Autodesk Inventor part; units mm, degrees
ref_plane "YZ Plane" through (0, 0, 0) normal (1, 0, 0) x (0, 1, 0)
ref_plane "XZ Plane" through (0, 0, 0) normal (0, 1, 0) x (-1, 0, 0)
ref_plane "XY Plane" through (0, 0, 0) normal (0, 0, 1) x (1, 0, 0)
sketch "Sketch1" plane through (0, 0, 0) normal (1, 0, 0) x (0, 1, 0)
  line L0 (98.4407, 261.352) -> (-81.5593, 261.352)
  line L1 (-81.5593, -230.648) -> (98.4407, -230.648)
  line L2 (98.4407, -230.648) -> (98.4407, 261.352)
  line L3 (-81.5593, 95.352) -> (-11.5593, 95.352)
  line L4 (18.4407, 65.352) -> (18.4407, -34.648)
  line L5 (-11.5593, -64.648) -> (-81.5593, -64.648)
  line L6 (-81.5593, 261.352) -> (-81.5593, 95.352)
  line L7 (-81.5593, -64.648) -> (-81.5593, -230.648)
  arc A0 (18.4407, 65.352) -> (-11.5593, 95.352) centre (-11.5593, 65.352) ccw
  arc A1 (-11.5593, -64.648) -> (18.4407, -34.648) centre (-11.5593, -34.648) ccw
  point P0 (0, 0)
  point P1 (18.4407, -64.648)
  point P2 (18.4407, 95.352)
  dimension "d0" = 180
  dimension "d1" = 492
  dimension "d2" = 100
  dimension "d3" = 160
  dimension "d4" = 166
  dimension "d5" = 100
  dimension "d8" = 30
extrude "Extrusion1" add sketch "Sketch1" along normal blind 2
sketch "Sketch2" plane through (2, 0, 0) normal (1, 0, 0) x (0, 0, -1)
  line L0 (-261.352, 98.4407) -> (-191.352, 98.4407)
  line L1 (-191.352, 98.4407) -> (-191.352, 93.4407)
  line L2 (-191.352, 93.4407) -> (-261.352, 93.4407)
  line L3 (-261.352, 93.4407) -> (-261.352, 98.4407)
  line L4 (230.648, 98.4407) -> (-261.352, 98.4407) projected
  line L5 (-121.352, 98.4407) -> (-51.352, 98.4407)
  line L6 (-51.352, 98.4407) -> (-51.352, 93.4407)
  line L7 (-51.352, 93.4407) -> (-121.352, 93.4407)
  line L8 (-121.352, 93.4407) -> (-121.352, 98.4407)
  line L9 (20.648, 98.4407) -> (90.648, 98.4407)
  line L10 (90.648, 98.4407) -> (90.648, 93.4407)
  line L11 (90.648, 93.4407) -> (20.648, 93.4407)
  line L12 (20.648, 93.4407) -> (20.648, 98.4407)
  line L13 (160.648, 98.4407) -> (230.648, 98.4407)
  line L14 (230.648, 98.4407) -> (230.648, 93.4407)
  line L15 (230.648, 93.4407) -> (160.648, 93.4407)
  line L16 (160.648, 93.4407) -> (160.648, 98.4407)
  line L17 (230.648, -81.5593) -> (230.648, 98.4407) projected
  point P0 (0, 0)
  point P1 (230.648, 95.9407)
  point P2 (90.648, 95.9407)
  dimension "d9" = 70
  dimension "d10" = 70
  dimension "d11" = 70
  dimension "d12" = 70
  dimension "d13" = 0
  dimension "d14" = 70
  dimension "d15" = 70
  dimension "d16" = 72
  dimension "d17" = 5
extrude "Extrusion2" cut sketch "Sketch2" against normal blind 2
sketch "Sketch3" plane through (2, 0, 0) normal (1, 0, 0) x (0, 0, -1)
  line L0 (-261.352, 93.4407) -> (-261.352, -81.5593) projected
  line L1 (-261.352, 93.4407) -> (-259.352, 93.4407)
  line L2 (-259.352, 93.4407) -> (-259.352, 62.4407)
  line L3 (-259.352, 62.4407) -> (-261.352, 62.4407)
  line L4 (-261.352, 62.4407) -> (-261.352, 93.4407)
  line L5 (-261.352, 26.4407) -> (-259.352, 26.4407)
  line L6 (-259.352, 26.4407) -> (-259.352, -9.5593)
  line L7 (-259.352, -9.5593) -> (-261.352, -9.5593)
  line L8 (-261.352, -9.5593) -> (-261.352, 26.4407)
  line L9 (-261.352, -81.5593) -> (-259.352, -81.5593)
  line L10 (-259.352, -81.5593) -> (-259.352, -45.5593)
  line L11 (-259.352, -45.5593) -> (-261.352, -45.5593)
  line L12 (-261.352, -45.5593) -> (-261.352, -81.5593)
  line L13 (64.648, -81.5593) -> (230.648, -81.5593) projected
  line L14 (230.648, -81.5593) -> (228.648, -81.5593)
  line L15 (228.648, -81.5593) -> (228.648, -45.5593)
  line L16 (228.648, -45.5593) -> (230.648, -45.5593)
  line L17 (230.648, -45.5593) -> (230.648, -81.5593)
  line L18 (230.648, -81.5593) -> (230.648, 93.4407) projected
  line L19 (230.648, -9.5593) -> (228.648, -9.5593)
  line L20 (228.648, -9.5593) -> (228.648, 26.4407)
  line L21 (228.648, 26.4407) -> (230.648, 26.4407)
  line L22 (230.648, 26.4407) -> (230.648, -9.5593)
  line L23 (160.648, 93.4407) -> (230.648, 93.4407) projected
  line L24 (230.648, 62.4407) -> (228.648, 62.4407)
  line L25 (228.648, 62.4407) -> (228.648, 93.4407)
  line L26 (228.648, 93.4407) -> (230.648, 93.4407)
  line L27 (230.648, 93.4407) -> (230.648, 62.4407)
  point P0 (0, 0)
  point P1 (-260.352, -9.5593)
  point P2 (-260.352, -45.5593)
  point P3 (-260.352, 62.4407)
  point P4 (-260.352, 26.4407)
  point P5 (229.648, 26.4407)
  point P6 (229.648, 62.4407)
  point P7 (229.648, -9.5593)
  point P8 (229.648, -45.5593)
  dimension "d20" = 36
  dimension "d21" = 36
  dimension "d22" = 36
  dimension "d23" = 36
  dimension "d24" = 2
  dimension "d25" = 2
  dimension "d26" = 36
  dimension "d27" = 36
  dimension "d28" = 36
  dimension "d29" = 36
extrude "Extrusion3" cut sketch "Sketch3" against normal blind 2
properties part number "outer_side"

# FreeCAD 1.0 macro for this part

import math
import FreeCAD as App
import Part
import Sketcher
from FreeCAD import Vector


def add_polygon(sketch, points):
    """Adds a closed chain of lines whose ends are joined by coincident constraints."""
    first, n = sketch.GeometryCount, len(points)
    for a, b in zip(points, points[1:] + points[:1]):
        sketch.addGeometry(Part.LineSegment(App.Vector(*a, 0), App.Vector(*b, 0)), False)
    for i in range(n):
        sketch.addConstraint(Sketcher.Constraint("Coincident", first + i, 2, first + (i + 1) % n, 1))

doc = App.newDocument("Part")
body = doc.addObject("PartDesign::Body", "Body")

# Sketch on YZ plane
sketch1 = doc.addObject("Sketcher::SketchObject", "Sketch")
body.addObject(sketch1)
sketch1.AttachmentSupport = (doc.YZ_Plane, [""])
sketch1.MapMode = "FlatFace"
sketch1.addGeometry([
    Part.LineSegment(Vector(98, -231, 0), Vector(98, 261, 0)),  # 0
    Part.LineSegment(Vector(98, 261, 0), Vector(-82, 261, 0)),  # 1
    Part.LineSegment(Vector(-82, 261, 0), Vector(-82, 95, 0)),  # 2
    Part.LineSegment(Vector(-82, 95, 0), Vector(-12, 95, 0)),  # 3
    Part.ArcOfCircle(Part.Circle(Vector(-12, 65, 0), Vector(0, 0, 1), 30), math.radians(0), math.radians(90)),  # 4
    Part.LineSegment(Vector(18, 65, 0), Vector(18, -35, 0)),  # 5
    Part.ArcOfCircle(Part.Circle(Vector(-12, -35, 0), Vector(0, 0, 1), 30), math.radians(-90), math.radians(0)),  # 6
    Part.LineSegment(Vector(-12, -65, 0), Vector(-82, -65, 0)),  # 7
    Part.LineSegment(Vector(-82, -65, 0), Vector(-82, -231, 0)),  # 8
    Part.LineSegment(Vector(-82, -231, 0), Vector(98, -231, 0)),  # 9
], False)
sketch1.addConstraint([
    Sketcher.Constraint("Coincident", 0, 2, 1, 1),
    Sketcher.Constraint("Coincident", 1, 2, 2, 1),
    Sketcher.Constraint("Coincident", 2, 2, 3, 1),
    Sketcher.Constraint("Tangent", 3, 2, 4, 2),
    Sketcher.Constraint("Tangent", 4, 1, 5, 1),
    Sketcher.Constraint("Tangent", 5, 2, 6, 2),
    Sketcher.Constraint("Tangent", 6, 1, 7, 1),
    Sketcher.Constraint("Coincident", 7, 2, 8, 1),
    Sketcher.Constraint("Coincident", 8, 2, 9, 1),
    Sketcher.Constraint("Coincident", 9, 2, 0, 1),
    Sketcher.Constraint("Vertical", 0),
    Sketcher.Constraint("Horizontal", 1),
    Sketcher.Constraint("Vertical", 2),
    Sketcher.Constraint("Horizontal", 3),
    Sketcher.Constraint("Vertical", 5),
    Sketcher.Constraint("Horizontal", 7),
    Sketcher.Constraint("Vertical", 8),
    Sketcher.Constraint("Horizontal", 9),
    Sketcher.Constraint("Equal", 4, 6),
    Sketcher.Constraint("Vertical", 2, 2, 7, 2),
    Sketcher.Constraint("Equal", 2, 8),
    Sketcher.Constraint("Radius", 4, 30.0),
    Sketcher.Constraint("DistanceX", 1, 2, 1, 1, 180.0),
    Sketcher.Constraint("DistanceY", 0, 1, 0, 2, 492.0),
    Sketcher.Constraint("DistanceY", 2, 2, 2, 1, 166.0),
    Sketcher.Constraint("DistanceX", 2, 2, 4, 1, 100.0),
    Sketcher.Constraint("DistanceY", -1, 1, 4, 3, 65.352),
    Sketcher.Constraint("DistanceX", 4, 3, -1, 1, 11.5593),
])
pad1 = doc.addObject("PartDesign::Pad", "Pad")
body.addObject(pad1)
pad1.Profile = sketch1
pad1.Length = 2

# Sketch on YZ plane
sketch2 = doc.addObject("Sketcher::SketchObject", "Sketch001")
body.addObject(sketch2)
sketch2.AttachmentSupport = (doc.YZ_Plane, [""])
sketch2.MapMode = "FlatFace"
sketch2.AttachmentOffset = App.Placement(Vector(0, 0, 2), App.Rotation())
add_polygon(sketch2, [(98, -231), (98, -161), (93, -161), (93, -231)])  # lines 0-3
add_polygon(sketch2, [(98, -91), (98, -21), (93, -21), (93, -91)])  # lines 4-7
add_polygon(sketch2, [(98, 51), (98, 121), (93, 121), (93, 51)])  # lines 8-11
add_polygon(sketch2, [(98, 191), (98, 261), (93, 261), (93, 191)])  # lines 12-15
sketch2.addConstraint([
    Sketcher.Constraint("Vertical", 0),
    Sketcher.Constraint("Horizontal", 1),
    Sketcher.Constraint("Vertical", 2),
    Sketcher.Constraint("Horizontal", 3),
    Sketcher.Constraint("Vertical", 4),
    Sketcher.Constraint("Horizontal", 5),
    Sketcher.Constraint("Vertical", 6),
    Sketcher.Constraint("Horizontal", 7),
    Sketcher.Constraint("Vertical", 8),
    Sketcher.Constraint("Horizontal", 9),
    Sketcher.Constraint("Vertical", 10),
    Sketcher.Constraint("Horizontal", 11),
    Sketcher.Constraint("Vertical", 12),
    Sketcher.Constraint("Horizontal", 13),
    Sketcher.Constraint("Vertical", 14),
    Sketcher.Constraint("Horizontal", 15),
    Sketcher.Constraint("Vertical", 3, 2, 4, 2),
    Sketcher.Constraint("Vertical", 2, 2, 5, 2),
    Sketcher.Constraint("Vertical", 7, 2, 8, 2),
    Sketcher.Constraint("Vertical", 6, 2, 9, 2),
    Sketcher.Constraint("Vertical", 11, 2, 12, 2),
    Sketcher.Constraint("Vertical", 10, 2, 13, 2),
    Sketcher.Constraint("Equal", 2, 4),
    Sketcher.Constraint("Equal", 6, 8),
    Sketcher.Constraint("Equal", 10, 12),
    Sketcher.Constraint("DistanceX", 1, 2, 1, 1, 5.0),
    Sketcher.Constraint("DistanceY", 0, 1, 0, 2, 70.0),
    Sketcher.Constraint("DistanceY", 1, 2, 6, 2, 70.0),
    Sketcher.Constraint("DistanceY", 5, 2, 10, 2, 72.0),
    Sketcher.Constraint("DistanceY", 9, 2, 14, 2, 70.0),
    Sketcher.Constraint("DistanceY", 0, 2, -1, 1, 160.648),
    Sketcher.Constraint("DistanceX", -1, 1, 0, 2, 98.4407),
])
pocket1 = doc.addObject("PartDesign::Pocket", "Pocket")
body.addObject(pocket1)
pocket1.Profile = sketch2
pocket1.Length = 2

# Sketch on YZ plane
sketch3 = doc.addObject("Sketcher::SketchObject", "Sketch002")
body.addObject(sketch3)
sketch3.AttachmentSupport = (doc.YZ_Plane, [""])
sketch3.MapMode = "FlatFace"
sketch3.AttachmentOffset = App.Placement(Vector(0, 0, 2), App.Rotation())
add_polygon(sketch3, [(93.4, 259.4), (93.4, 261.4), (62.4, 261.4), (62.4, 259.4)])  # lines 0-3
add_polygon(sketch3, [(-45.6, 259.4), (-45.6, 261.4), (-81.6, 261.4), (-81.6, 259.4)])  # lines 4-7
add_polygon(sketch3, [(26.4, 259.4), (26.4, 261.4), (-9.6, 261.4), (-9.6, 259.4)])  # lines 8-11
add_polygon(sketch3, [(-45.6, -228.6), (-81.6, -228.6), (-81.6, -230.6), (-45.6, -230.6)])  # lines 12-15
add_polygon(sketch3, [(62.4, -228.6), (62.4, -230.6), (93.4, -230.6), (93.4, -228.6)])  # lines 16-19
add_polygon(sketch3, [(-9.6, -228.6), (-9.6, -230.6), (26.4, -230.6), (26.4, -228.6)])  # lines 20-23
sketch3.addConstraint([
    Sketcher.Constraint("Vertical", 0),
    Sketcher.Constraint("Horizontal", 1),
    Sketcher.Constraint("Vertical", 2),
    Sketcher.Constraint("Horizontal", 3),
    Sketcher.Constraint("Vertical", 4),
    Sketcher.Constraint("Horizontal", 5),
    Sketcher.Constraint("Vertical", 6),
    Sketcher.Constraint("Horizontal", 7),
    Sketcher.Constraint("Vertical", 8),
    Sketcher.Constraint("Horizontal", 9),
    Sketcher.Constraint("Vertical", 10),
    Sketcher.Constraint("Horizontal", 11),
    Sketcher.Constraint("Horizontal", 12),
    Sketcher.Constraint("Vertical", 13),
    Sketcher.Constraint("Horizontal", 14),
    Sketcher.Constraint("Vertical", 15),
    Sketcher.Constraint("Vertical", 16),
    Sketcher.Constraint("Horizontal", 17),
    Sketcher.Constraint("Vertical", 18),
    Sketcher.Constraint("Horizontal", 19),
    Sketcher.Constraint("Vertical", 20),
    Sketcher.Constraint("Horizontal", 21),
    Sketcher.Constraint("Vertical", 22),
    Sketcher.Constraint("Horizontal", 23),
    Sketcher.Constraint("Horizontal", 1, 2, 4, 2),
    Sketcher.Constraint("Horizontal", 3, 2, 6, 2),
    Sketcher.Constraint("Horizontal", 5, 2, 8, 2),
    Sketcher.Constraint("Horizontal", 7, 2, 10, 2),
    Sketcher.Constraint("Horizontal", 14, 2, 16, 2),
    Sketcher.Constraint("Horizontal", 15, 2, 18, 2),
    Sketcher.Constraint("Horizontal", 17, 2, 20, 2),
    Sketcher.Constraint("Horizontal", 19, 2, 22, 2),
    Sketcher.Constraint("Vertical", 6, 2, 12, 2),
    Sketcher.Constraint("Vertical", 7, 2, 14, 2),
    Sketcher.Constraint("Vertical", 2, 2, 16, 2),
    Sketcher.Constraint("Vertical", 3, 2, 17, 2),
    Sketcher.Constraint("Vertical", 10, 2, 20, 2),
    Sketcher.Constraint("Vertical", 11, 2, 21, 2),
    Sketcher.Constraint("Equal", 7, 9),
    Sketcher.Constraint("Equal", 10, 13),
    Sketcher.Constraint("DistanceX", 5, 2, 5, 1, 36.0),
    Sketcher.Constraint("DistanceY", 0, 1, 0, 2, 2.0),
    Sketcher.Constraint("DistanceX", 8, 2, 1, 2, 36.0),
    Sketcher.Constraint("DistanceX", 4, 2, 9, 2, 36.0),
    Sketcher.Constraint("DistanceX", 1, 2, 1, 1, 31.0),
    Sketcher.Constraint("DistanceY", 12, 2, 6, 2, 488.0),
    Sketcher.Constraint("DistanceY", -1, 1, 0, 2, 261.352),
    Sketcher.Constraint("DistanceX", -1, 1, 0, 2, 93.4407),
])
pocket2 = doc.addObject("PartDesign::Pocket", "Pocket001")
body.addObject(pocket2)
pocket2.Profile = sketch3
pocket2.Length = 2

doc.recompute()
